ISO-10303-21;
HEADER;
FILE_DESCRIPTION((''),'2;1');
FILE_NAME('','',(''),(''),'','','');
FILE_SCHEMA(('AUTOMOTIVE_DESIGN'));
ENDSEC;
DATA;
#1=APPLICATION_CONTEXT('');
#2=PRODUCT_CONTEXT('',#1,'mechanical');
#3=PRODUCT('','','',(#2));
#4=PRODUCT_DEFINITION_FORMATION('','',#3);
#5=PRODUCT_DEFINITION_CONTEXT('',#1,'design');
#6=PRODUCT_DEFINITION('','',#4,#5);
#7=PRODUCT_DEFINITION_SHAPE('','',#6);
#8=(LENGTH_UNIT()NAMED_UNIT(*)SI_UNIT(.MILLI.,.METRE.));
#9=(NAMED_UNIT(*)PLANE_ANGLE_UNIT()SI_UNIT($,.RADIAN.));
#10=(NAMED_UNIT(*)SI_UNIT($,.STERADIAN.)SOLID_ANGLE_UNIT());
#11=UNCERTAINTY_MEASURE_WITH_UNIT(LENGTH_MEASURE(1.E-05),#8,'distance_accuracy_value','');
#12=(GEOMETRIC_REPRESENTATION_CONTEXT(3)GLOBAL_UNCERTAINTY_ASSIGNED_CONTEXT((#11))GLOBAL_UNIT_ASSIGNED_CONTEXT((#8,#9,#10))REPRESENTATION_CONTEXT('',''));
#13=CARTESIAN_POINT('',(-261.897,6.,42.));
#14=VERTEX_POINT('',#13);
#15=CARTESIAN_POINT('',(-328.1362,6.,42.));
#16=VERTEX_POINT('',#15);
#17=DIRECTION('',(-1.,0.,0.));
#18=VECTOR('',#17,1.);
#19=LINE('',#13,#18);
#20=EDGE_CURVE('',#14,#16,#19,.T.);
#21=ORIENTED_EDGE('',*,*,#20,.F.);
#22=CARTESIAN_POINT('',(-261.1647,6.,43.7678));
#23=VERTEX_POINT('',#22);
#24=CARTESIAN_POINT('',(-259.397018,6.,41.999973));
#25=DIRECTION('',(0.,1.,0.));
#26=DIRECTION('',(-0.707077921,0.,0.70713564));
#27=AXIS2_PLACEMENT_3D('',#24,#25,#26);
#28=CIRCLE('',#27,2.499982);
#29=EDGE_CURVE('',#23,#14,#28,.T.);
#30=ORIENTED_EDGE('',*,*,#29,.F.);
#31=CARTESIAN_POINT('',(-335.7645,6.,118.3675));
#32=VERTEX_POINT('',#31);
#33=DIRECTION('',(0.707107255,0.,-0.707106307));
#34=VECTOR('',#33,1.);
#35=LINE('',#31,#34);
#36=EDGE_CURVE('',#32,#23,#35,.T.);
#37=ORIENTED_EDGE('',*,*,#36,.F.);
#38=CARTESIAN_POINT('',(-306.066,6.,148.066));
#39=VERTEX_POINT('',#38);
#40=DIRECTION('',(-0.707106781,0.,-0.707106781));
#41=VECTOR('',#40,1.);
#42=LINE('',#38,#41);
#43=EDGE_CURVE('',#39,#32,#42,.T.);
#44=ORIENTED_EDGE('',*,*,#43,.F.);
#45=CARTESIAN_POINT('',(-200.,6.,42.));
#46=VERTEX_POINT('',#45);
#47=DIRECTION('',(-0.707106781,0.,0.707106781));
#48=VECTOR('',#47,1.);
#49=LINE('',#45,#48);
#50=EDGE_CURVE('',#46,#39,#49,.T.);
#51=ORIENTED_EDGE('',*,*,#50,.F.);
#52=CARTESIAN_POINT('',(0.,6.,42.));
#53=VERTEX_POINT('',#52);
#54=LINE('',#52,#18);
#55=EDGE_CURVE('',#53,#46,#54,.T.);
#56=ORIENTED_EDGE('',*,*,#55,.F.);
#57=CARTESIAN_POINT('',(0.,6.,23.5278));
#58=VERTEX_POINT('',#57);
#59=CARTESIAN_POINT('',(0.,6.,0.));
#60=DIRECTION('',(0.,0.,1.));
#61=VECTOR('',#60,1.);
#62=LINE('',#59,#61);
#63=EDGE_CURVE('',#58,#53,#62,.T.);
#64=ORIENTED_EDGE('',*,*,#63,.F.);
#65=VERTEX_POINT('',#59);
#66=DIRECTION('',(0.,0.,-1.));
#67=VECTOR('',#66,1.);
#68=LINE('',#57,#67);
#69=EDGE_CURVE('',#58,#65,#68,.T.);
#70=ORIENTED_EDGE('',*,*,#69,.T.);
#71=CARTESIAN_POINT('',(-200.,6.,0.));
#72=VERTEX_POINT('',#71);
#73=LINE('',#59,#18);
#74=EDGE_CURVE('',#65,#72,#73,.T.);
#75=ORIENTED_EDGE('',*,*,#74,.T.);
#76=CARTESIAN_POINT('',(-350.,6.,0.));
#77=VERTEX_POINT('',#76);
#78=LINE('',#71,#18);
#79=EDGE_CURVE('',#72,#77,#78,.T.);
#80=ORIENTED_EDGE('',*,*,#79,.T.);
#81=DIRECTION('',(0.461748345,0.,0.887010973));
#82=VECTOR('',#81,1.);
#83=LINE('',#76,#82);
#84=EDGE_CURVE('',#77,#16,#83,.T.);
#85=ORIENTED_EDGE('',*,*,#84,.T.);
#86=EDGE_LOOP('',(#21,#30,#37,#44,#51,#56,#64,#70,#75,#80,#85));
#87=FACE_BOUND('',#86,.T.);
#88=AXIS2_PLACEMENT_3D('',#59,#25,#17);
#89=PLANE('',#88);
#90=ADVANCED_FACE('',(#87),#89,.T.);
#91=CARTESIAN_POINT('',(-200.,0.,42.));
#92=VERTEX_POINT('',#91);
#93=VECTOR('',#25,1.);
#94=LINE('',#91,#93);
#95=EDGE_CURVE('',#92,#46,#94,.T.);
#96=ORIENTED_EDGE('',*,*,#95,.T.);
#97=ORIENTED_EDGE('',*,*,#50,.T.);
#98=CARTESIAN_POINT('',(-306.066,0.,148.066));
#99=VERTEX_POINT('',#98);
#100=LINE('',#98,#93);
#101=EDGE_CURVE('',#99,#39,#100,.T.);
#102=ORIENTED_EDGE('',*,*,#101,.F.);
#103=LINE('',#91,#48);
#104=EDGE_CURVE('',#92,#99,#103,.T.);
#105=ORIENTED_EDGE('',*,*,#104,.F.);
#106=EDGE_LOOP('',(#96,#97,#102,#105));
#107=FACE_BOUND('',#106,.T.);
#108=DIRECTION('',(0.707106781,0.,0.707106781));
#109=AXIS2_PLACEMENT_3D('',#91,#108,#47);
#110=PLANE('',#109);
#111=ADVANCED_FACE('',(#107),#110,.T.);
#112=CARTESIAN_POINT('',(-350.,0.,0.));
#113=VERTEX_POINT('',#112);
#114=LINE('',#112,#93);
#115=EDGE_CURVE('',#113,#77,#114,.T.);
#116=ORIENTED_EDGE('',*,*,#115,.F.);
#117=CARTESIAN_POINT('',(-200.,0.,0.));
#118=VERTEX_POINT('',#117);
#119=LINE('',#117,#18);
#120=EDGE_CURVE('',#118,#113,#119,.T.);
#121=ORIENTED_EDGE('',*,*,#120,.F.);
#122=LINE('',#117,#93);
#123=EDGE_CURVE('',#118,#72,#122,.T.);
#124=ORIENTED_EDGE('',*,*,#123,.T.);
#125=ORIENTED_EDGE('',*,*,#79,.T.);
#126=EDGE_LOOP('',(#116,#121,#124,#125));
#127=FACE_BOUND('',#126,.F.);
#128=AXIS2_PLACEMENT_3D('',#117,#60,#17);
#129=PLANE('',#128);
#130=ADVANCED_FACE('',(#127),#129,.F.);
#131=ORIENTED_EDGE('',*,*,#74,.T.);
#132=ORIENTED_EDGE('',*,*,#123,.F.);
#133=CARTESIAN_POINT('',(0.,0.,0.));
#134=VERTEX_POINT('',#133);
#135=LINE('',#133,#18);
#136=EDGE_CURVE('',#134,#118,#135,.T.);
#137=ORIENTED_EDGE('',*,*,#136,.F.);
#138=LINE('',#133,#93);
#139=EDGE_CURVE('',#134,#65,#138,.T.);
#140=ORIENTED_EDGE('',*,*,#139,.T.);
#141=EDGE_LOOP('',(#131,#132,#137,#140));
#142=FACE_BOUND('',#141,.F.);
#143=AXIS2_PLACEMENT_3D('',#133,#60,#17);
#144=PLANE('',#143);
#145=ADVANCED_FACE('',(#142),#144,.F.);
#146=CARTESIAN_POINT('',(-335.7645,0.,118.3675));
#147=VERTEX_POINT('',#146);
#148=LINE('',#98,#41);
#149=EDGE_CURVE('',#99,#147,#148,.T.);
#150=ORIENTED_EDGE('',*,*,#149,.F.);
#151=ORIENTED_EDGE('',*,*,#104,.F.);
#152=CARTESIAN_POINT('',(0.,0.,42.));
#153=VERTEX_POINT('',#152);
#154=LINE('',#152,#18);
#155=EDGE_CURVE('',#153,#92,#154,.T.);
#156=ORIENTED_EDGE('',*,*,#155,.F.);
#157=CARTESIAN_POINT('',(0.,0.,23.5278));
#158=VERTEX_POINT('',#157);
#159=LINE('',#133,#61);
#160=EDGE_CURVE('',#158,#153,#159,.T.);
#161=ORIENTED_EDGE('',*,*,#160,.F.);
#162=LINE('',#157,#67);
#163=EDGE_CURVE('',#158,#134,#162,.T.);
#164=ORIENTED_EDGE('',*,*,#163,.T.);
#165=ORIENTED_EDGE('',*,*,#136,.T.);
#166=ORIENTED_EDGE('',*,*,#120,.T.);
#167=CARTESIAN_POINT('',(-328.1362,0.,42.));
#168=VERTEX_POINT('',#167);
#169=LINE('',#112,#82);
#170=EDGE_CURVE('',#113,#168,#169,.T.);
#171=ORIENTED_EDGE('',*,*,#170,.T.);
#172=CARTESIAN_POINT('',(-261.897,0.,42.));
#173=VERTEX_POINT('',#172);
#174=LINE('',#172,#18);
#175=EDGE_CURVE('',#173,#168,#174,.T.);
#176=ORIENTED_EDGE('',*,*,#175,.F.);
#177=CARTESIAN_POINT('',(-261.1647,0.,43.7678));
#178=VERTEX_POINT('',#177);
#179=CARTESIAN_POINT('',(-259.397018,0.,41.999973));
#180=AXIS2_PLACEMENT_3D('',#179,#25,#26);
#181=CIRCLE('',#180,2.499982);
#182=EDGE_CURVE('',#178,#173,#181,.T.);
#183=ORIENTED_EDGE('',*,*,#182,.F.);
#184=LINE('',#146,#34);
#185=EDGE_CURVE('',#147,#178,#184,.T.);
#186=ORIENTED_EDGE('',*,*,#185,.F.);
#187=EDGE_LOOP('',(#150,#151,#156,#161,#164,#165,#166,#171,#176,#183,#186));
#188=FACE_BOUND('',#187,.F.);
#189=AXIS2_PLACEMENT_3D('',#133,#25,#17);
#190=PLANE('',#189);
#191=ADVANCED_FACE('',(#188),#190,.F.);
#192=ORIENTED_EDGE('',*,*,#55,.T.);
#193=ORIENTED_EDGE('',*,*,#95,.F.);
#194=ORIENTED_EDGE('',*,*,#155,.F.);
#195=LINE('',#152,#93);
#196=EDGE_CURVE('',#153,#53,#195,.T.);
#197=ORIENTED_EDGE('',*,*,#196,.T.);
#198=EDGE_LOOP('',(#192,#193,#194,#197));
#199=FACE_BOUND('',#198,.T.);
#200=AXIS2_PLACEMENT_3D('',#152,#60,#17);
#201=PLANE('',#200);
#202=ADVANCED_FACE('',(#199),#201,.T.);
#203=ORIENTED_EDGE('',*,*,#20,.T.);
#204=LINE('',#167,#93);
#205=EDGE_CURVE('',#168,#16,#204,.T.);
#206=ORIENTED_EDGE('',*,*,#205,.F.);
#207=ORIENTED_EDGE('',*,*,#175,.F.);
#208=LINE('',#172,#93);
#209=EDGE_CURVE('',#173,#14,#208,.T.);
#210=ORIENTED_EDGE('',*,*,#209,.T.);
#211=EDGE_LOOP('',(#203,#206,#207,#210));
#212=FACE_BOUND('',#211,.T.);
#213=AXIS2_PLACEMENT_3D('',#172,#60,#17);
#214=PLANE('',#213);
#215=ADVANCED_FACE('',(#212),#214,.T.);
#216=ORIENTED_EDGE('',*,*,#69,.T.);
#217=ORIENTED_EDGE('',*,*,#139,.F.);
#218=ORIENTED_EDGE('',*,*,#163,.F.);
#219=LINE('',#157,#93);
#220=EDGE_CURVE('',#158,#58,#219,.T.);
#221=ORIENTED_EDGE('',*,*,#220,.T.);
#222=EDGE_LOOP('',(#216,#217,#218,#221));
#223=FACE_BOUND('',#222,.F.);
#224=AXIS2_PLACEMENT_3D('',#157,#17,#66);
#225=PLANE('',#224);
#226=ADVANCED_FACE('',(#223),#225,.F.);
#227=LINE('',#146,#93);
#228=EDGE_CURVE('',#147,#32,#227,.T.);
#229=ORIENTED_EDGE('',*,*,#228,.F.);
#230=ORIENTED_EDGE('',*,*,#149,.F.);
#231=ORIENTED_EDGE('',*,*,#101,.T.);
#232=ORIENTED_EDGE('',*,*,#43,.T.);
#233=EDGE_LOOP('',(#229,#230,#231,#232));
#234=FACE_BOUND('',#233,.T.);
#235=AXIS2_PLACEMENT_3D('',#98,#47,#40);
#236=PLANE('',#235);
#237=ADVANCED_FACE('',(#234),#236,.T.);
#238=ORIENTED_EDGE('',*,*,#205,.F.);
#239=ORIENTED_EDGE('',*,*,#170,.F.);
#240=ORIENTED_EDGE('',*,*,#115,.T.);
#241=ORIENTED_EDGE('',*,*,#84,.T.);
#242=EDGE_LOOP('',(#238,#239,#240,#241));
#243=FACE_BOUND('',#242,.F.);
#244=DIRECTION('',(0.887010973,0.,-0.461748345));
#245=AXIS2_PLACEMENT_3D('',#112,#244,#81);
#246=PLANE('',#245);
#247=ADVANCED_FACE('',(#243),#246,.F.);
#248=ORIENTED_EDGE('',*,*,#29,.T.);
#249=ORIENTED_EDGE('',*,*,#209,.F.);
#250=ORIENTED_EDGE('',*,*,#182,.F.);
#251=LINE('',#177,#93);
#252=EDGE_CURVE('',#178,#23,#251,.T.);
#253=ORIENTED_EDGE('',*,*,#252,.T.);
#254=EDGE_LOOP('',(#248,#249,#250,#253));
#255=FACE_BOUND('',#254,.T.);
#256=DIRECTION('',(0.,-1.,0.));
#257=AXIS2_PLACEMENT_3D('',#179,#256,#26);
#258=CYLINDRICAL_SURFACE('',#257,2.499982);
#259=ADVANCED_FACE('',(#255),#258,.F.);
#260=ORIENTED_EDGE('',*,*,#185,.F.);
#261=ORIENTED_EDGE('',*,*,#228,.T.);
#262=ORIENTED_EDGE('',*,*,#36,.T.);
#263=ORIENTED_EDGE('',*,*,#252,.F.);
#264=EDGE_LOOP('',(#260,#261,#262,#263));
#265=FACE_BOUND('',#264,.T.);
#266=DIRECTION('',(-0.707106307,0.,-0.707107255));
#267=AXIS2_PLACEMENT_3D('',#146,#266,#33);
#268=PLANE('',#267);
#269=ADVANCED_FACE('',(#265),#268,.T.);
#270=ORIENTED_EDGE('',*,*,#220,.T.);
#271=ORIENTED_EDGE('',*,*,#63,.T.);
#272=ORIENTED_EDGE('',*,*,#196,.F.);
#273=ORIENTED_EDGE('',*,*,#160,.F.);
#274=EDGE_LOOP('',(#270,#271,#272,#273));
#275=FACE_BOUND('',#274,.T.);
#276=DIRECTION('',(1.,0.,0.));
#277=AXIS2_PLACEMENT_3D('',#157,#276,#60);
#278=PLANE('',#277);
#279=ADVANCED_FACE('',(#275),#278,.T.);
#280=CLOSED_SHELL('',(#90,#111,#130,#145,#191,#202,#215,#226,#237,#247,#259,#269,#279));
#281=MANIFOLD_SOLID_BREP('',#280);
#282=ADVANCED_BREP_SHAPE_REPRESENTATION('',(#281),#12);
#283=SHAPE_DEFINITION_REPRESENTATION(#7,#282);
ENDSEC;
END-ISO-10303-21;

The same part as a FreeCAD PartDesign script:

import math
import FreeCAD as App
import Part
import Sketcher
Q = App.Units.Quantity

doc = App.newDocument("Part")
body = doc.addObject("PartDesign::Body", "Body")

# Sketch on XZ plane
sketch1 = body.newObject("Sketcher::SketchObject", "Sketch")
sketch1.AttachmentSupport = (doc.getObject("XZ_Plane"), [""])
sketch1.MapMode = "FlatFace"
sketch1.addGeometry([
    Part.LineSegment(App.Vector(0, 42, 0), App.Vector(0, 0, 0)),  # 0
    Part.LineSegment(App.Vector(0, 0, 0), App.Vector(-350, 0, 0)),  # 1
    Part.LineSegment(App.Vector(-350, 0, 0), App.Vector(-328.1362, 42, 0)),  # 2
    Part.LineSegment(App.Vector(-328.1362, 42, 0), App.Vector(-261.897, 42, 0)),  # 3
    Part.ArcOfCircle(Part.Circle(App.Vector(-259.397, 42, 0), App.Vector(0, 0, 1), 2.499976), math.radians(180), math.radians(494.998379)),  # 4
    Part.LineSegment(App.Vector(-261.1647, 43.7678, 0), App.Vector(-335.7645, 118.3675, 0)),  # 5
    Part.LineSegment(App.Vector(-335.7645, 118.3675, 0), App.Vector(-306.066, 148.066, 0)),  # 6
    Part.LineSegment(App.Vector(-306.066, 148.066, 0), App.Vector(-200, 42, 0)),  # 7
    Part.LineSegment(App.Vector(-200, 42, 0), App.Vector(0, 42, 0)),  # 8
], False)
sketch1.addConstraint([
    Sketcher.Constraint("Coincident", 0, 2, 1, 1),
    Sketcher.Constraint("Coincident", 1, 2, 2, 1),
    Sketcher.Constraint("Coincident", 2, 2, 3, 1),
    Sketcher.Constraint("Coincident", 3, 2, 4, 1),
    Sketcher.Constraint("Coincident", 4, 2, 5, 1),
    Sketcher.Constraint("Coincident", 5, 2, 6, 1),
    Sketcher.Constraint("Coincident", 6, 2, 7, 1),
    Sketcher.Constraint("Coincident", 7, 2, 8, 1),
    Sketcher.Constraint("Coincident", 8, 2, 0, 1),
    Sketcher.Constraint("Vertical", 0),
    Sketcher.Constraint("Horizontal", 1),
    Sketcher.Constraint("Horizontal", 3),
    Sketcher.Constraint("Horizontal", 8),
    Sketcher.Constraint("Coincident", 0, 2, -1, 1),
    Sketcher.Constraint("Perpendicular", 5, 6),
    Sketcher.Constraint("Perpendicular", 6, 7),
    Sketcher.Constraint("Horizontal", 4, 3, 2, 2),
    Sketcher.Constraint("Horizontal", 3, 2, 7, 2),
    Sketcher.Constraint("Radius", 4, 2.5),
    Sketcher.Constraint("DistanceX", 8, 1, 8, 2, 200.0),
    Sketcher.Constraint("DistanceY", 0, 2, 0, 1, 42.0),
    Sketcher.Constraint("Angle", 6, Q("45 deg")),
    Sketcher.Constraint("Distance", 6, 42.0),
    Sketcher.Constraint("Distance", 7, 150.0),
    Sketcher.Constraint("Angle", 2, Q("62.5 deg")),
    Sketcher.Constraint("DistanceX", 1, 2, 1, 1, 350.0),
    Sketcher.Constraint("Distance", 5, 105.5),
])
pad1 = body.newObject("PartDesign::Pad", "Pad")
pad1.Profile = sketch1
pad1.Length = 6
pad1.Reversed = True

doc.recompute()
